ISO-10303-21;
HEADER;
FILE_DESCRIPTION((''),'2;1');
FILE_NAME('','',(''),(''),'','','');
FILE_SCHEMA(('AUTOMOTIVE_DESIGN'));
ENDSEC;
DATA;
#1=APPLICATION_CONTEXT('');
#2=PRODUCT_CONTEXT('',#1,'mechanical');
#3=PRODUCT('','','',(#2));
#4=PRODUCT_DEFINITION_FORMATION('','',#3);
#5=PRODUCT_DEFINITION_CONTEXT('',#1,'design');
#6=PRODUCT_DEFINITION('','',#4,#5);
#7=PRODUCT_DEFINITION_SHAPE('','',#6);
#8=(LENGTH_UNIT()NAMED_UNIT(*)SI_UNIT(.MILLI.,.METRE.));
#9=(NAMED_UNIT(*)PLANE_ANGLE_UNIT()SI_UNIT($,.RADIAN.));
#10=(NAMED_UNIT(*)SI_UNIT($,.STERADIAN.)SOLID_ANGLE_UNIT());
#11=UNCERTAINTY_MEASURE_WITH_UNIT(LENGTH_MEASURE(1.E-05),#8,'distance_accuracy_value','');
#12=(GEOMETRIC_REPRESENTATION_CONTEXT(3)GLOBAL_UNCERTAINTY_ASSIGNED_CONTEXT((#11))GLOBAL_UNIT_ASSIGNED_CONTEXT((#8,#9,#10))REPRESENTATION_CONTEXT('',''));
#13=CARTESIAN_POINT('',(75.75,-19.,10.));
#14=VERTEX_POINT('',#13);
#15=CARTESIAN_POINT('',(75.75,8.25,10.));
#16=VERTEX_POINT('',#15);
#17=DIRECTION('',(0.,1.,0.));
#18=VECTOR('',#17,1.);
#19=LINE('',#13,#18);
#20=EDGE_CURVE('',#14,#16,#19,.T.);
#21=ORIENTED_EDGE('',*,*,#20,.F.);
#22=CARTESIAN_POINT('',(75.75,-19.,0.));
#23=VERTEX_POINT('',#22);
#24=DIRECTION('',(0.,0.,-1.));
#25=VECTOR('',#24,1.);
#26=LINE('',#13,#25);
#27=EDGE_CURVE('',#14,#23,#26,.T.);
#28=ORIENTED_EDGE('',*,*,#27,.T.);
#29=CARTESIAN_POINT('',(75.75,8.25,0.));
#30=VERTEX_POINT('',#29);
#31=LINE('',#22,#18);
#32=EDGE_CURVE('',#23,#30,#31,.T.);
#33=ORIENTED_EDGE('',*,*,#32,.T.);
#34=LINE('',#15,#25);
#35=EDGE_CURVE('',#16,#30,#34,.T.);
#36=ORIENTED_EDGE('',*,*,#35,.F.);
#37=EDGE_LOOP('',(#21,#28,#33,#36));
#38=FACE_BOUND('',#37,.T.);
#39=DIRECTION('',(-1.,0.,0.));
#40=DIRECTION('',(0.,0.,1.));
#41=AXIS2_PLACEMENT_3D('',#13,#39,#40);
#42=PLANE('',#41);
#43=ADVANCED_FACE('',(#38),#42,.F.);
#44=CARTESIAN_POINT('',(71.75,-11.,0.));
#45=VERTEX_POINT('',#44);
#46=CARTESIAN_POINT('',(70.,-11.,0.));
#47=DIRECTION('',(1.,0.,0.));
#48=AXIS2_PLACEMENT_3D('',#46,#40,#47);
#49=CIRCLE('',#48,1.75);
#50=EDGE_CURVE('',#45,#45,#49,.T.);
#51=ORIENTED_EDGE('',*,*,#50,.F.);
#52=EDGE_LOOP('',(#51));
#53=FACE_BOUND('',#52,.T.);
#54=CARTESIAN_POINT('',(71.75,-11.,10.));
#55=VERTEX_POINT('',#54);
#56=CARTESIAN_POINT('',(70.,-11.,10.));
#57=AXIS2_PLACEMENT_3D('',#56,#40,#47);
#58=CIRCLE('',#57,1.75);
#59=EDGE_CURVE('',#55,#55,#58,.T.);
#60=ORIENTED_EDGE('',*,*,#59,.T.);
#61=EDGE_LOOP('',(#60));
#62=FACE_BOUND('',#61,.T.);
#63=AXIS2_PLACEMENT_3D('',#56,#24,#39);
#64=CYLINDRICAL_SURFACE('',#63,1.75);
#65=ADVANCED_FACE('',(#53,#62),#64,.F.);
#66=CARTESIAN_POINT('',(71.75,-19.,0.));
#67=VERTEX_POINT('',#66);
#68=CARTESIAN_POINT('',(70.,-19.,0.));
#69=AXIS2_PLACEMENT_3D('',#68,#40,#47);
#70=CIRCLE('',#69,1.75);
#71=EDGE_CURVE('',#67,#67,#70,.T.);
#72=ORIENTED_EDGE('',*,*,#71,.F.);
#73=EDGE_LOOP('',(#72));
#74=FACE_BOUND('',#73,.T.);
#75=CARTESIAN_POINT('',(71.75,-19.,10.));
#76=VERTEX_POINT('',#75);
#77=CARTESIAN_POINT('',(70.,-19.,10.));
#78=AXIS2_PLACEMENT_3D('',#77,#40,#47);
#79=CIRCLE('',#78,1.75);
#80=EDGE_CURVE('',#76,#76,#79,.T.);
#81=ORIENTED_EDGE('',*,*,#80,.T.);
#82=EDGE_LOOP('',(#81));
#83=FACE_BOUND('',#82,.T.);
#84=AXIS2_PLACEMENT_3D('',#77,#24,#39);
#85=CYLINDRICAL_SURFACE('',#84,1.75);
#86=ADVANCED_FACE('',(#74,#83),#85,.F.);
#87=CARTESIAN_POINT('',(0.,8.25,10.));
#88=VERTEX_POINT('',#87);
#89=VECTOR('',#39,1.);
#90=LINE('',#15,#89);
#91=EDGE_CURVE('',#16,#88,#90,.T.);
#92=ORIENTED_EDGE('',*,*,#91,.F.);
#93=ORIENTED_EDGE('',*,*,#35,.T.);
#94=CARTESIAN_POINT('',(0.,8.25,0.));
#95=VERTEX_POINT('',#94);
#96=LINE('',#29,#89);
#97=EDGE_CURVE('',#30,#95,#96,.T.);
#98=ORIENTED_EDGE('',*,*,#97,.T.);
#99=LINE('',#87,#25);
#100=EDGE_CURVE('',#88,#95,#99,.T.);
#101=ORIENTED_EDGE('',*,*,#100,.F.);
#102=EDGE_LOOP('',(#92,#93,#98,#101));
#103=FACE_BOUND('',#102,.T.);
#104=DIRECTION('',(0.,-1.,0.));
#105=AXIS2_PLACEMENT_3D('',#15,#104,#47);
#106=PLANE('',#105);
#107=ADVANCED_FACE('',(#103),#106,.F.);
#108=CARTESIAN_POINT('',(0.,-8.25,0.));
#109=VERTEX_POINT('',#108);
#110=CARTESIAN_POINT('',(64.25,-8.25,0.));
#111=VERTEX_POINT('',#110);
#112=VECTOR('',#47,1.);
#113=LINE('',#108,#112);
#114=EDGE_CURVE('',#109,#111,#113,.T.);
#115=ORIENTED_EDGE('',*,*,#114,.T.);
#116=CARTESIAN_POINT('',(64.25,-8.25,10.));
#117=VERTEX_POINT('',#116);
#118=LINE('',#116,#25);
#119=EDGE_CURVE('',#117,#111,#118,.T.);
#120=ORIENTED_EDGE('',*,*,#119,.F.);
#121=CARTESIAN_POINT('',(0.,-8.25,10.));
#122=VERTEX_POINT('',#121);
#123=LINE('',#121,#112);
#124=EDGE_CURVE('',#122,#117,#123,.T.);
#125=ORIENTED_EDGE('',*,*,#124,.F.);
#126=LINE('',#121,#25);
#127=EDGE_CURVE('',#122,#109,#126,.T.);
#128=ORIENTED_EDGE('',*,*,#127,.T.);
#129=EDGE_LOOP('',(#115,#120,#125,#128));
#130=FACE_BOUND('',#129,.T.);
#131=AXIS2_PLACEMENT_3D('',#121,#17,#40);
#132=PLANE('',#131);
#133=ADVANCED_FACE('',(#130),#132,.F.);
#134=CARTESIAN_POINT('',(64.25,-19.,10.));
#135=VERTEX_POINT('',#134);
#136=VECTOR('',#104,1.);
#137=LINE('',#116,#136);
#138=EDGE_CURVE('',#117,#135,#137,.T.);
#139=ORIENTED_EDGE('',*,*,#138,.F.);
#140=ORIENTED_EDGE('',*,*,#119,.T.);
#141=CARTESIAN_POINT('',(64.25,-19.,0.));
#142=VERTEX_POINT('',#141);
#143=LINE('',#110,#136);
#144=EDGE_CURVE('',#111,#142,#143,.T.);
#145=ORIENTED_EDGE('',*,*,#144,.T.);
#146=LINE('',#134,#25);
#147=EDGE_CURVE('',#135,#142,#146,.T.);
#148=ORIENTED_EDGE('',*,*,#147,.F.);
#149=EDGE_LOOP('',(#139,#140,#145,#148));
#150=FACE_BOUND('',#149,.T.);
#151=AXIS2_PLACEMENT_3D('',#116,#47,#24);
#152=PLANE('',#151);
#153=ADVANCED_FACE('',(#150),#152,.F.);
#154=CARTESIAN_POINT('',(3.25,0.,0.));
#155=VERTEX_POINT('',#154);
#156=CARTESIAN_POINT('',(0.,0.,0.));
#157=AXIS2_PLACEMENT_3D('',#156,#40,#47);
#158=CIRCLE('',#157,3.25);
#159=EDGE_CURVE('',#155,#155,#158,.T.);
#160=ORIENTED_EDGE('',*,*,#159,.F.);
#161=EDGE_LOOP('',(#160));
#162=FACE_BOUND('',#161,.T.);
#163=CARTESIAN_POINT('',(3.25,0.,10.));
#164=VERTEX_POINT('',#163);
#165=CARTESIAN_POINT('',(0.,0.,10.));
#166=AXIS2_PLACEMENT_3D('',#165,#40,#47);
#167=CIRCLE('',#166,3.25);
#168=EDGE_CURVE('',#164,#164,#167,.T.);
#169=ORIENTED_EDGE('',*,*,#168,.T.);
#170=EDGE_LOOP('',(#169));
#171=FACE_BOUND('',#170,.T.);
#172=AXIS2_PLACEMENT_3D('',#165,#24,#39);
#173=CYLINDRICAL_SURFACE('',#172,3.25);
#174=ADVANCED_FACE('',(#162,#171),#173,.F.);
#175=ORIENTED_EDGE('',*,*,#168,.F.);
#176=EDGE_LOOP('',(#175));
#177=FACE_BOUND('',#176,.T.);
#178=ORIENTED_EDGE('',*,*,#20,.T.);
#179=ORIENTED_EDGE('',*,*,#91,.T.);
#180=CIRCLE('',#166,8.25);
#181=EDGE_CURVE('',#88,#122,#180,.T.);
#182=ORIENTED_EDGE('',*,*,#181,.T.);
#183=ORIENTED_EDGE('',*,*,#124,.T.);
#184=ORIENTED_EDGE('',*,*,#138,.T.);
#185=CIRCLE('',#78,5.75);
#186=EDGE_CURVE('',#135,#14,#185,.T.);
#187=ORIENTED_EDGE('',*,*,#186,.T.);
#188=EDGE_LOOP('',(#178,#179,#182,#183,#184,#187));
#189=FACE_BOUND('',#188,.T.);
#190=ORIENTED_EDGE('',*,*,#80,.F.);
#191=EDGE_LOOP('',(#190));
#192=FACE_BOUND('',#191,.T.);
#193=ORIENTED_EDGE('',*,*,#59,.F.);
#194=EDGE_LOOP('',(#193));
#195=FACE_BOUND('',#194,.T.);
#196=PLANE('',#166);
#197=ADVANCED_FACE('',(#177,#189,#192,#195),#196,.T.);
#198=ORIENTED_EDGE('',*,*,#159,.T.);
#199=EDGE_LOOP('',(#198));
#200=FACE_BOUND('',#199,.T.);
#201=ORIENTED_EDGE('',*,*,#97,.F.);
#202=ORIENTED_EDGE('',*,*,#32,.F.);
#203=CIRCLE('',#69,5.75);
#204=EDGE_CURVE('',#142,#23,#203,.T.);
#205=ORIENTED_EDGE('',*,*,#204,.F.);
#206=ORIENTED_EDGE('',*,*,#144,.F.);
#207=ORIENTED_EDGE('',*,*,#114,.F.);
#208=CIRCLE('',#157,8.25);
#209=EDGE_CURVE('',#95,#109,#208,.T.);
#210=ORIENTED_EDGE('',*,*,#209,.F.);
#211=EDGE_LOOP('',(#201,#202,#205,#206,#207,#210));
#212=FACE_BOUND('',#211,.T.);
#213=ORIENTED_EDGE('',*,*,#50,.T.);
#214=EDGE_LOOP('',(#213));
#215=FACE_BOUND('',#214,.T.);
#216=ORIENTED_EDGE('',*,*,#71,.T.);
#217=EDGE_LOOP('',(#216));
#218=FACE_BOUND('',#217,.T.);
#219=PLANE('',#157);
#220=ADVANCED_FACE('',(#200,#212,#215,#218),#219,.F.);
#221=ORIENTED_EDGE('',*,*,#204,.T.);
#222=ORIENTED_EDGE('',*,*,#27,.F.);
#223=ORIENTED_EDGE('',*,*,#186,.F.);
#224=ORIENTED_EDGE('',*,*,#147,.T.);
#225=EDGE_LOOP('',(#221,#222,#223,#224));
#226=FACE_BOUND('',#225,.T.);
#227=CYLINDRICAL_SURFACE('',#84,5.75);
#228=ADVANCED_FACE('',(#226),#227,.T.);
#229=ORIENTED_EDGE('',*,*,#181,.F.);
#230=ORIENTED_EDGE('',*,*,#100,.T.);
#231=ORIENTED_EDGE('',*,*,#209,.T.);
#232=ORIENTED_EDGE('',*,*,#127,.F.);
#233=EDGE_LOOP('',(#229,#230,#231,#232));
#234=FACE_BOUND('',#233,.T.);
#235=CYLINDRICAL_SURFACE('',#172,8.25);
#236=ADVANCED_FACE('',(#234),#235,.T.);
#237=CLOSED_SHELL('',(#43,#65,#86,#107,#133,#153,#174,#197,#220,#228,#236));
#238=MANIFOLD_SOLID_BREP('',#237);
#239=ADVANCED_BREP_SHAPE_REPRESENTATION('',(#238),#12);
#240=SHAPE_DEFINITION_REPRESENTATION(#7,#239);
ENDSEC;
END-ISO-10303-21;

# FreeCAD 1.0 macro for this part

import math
import FreeCAD as App
import Part
import Sketcher

V = App.Vector

doc = App.newDocument("Part")
body = doc.addObject("PartDesign::Body", "Body")

# Sketch on XY plane
sketch1 = body.newObject("Sketcher::SketchObject", "Sketch")
sketch1.AttachmentSupport = (doc.getObject("XY_Plane"), [""])
sketch1.MapMode = "FlatFace"
sketch1.addGeometry([
    Part.LineSegment(V(75.8, 8.2, 0), V(0, 8.2, 0)),  # 0
    Part.ArcOfCircle(Part.Circle(V(0, 0, 0), V(0, 0, 1), 8.2), math.radians(90), math.radians(270)),  # 1
    Part.LineSegment(V(0, -8.2, 0), V(64.2, -8.2, 0)),  # 2
    Part.LineSegment(V(64.2, -8.2, 0), V(64.2, -19, 0)),  # 3
    Part.ArcOfCircle(Part.Circle(V(70, -19, 0), V(0, 0, 1), 5.8), math.radians(180), math.radians(360)),  # 4
    Part.LineSegment(V(75.8, -19, 0), V(75.8, 8.2, 0)),  # 5
    Part.Circle(V(70, -19, 0), V(0, 0, 1), 1.8),  # 6
    Part.Circle(V(70, -11, 0), V(0, 0, 1), 1.8),  # 7
    Part.Circle(V(0, 0, 0), V(0, 0, 1), 3.2),  # 8
], False)
sketch1.addConstraint([
    Sketcher.Constraint("Tangent", 0, 2, 1, 1),
    Sketcher.Constraint("Tangent", 1, 2, 2, 1),
    Sketcher.Constraint("Coincident", 2, 2, 3, 1),
    Sketcher.Constraint("Tangent", 3, 2, 4, 1),
    Sketcher.Constraint("Tangent", 4, 2, 5, 1),
    Sketcher.Constraint("Coincident", 5, 2, 0, 1),
    Sketcher.Constraint("Horizontal", 0),
    Sketcher.Constraint("Horizontal", 2),
    Sketcher.Constraint("Vertical", 3),
    Sketcher.Constraint("Vertical", 5),
    Sketcher.Constraint("Coincident", 1, 3, -1, 1),
    Sketcher.Constraint("Coincident", 8, 3, -1, 1),
    Sketcher.Constraint("Coincident", 6, 3, 4, 3),
    Sketcher.Constraint("Equal", 6, 7),
    Sketcher.Constraint("Vertical", 6, 3, 7, 3),
    Sketcher.Constraint("Diameter", 6, 3.5),
    Sketcher.Constraint("Diameter", 8, 6.5),
    Sketcher.Constraint("Radius", 1, 8.25),
    Sketcher.Constraint("Radius", 4, 5.75),
    Sketcher.Constraint("DistanceX", -1, 1, 4, 3, 70.0),
    Sketcher.Constraint("DistanceY", 4, 3, -1, 1, 19.0),
    Sketcher.Constraint("DistanceY", 7, 3, -1, 1, 11.0),
])
pad1 = body.newObject("PartDesign::Pad", "Pad")
pad1.Profile = sketch1
pad1.Length = 10

doc.recompute()
